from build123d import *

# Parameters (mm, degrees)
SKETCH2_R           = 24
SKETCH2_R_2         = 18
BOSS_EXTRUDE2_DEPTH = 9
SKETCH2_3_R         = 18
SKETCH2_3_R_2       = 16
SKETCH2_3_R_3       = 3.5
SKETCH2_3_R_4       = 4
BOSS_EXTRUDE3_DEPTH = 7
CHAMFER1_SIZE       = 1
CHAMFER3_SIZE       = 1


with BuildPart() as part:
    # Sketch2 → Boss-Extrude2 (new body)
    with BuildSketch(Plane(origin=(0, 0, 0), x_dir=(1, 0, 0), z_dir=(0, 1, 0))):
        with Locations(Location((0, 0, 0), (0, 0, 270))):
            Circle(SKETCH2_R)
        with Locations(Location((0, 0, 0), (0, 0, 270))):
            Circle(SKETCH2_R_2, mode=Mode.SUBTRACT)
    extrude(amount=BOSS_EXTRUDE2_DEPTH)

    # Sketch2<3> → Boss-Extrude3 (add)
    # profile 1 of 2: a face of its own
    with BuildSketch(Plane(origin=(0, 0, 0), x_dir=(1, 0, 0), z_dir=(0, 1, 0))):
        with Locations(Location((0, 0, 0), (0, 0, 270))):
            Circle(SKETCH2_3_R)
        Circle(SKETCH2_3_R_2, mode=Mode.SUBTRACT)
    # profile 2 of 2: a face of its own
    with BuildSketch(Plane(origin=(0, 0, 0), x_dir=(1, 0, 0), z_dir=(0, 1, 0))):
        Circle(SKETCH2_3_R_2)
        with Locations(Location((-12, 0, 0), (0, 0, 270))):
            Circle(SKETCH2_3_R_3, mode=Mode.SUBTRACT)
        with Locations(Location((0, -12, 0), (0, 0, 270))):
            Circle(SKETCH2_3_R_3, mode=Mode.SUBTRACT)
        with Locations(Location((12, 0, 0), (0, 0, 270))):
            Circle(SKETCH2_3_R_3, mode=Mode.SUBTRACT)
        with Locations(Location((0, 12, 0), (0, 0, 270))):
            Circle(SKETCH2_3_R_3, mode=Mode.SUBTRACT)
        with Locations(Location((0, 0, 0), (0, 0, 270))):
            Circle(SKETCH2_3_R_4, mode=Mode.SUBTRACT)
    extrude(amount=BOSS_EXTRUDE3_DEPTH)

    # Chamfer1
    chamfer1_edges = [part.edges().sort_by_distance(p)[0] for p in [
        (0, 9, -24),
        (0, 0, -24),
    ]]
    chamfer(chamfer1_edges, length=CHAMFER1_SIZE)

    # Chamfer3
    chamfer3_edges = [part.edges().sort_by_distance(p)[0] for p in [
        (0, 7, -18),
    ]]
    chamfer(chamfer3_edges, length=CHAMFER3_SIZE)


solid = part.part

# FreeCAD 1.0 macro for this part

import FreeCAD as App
import Part
import Sketcher
from FreeCAD import Vector
Q = App.Units.Quantity


def edges_at(feature, points):
    """Names of the edges that pass closest to the given points."""
    edges = feature.Shape.Edges
    near = lambda p: min(range(len(edges)), key=lambda i: edges[i].distToShape(Part.Vertex(*p))[0])
    return sorted({f"Edge{near(p) + 1}" for p in points})

doc = App.newDocument("Part")
body = doc.addObject("PartDesign::Body", "Body")

sketch1 = body.newObject("Sketcher::SketchObject", "Sketch")
sketch1.AttachmentSupport = (doc.getObject("XZ_Plane"), [""])
sketch1.MapMode = "FlatFace"
sketch1.addGeometry(Part.Circle(Vector(0, 0, 0), Vector(0, 0, 1), 24), False)
sketch1.addGeometry(Part.Circle(Vector(0, 0, 0), Vector(0, 0, 1), 18), False)
sketch1.addConstraint(Sketcher.Constraint("Coincident", 0, 3, -1, 1))
sketch1.addConstraint(Sketcher.Constraint("Coincident", 1, 3, -1, 1))
sketch1.addConstraint(Sketcher.Constraint("Diameter", 0, Q("48 mm")))
sketch1.addConstraint(Sketcher.Constraint("Diameter", 1, Q("36 mm")))
pad1 = body.newObject("PartDesign::Pad", "Pad")
pad1.Profile = sketch1
pad1.Length = 9
pad1.Reversed = True

sketch2 = body.newObject("Sketcher::SketchObject", "Sketch001")
sketch2.AttachmentSupport = (doc.getObject("XZ_Plane"), [""])
sketch2.MapMode = "FlatFace"
sketch2.addGeometry(Part.Circle(Vector(0, 0, 0), Vector(0, 0, 1), 18), False)
sketch2.addGeometry(Part.Circle(Vector(0, -12, 0), Vector(0, 0, 1), 3.5), False)
sketch2.addGeometry(Part.Circle(Vector(0, 12, 0), Vector(0, 0, 1), 3.5), False)
sketch2.addGeometry(Part.Circle(Vector(-12, 0, 0), Vector(0, 0, 1), 3.5), False)
sketch2.addGeometry(Part.Circle(Vector(0, 0, 0), Vector(0, 0, 1), 4), False)
sketch2.addGeometry(Part.Circle(Vector(12, 0, 0), Vector(0, 0, 1), 3.5), False)
sketch2.addConstraint(Sketcher.Constraint("Coincident", 0, 3, -1, 1))
sketch2.addConstraint(Sketcher.Constraint("Coincident", 4, 3, -1, 1))
sketch2.addConstraint(Sketcher.Constraint("Equal", 1, 2))
sketch2.addConstraint(Sketcher.Constraint("Equal", 2, 3))
sketch2.addConstraint(Sketcher.Constraint("Equal", 3, 5))
sketch2.addConstraint(Sketcher.Constraint("Symmetric", 1, 3, 2, 3, -1, 1))
sketch2.addConstraint(Sketcher.Constraint("Symmetric", 3, 3, 5, 3, -1, 1))
sketch2.addConstraint(Sketcher.Constraint("PointOnObject", 1, 3, -2))
sketch2.addConstraint(Sketcher.Constraint("PointOnObject", 3, 3, -1))
sketch2.addConstraint(Sketcher.Constraint("Diameter", 0, Q("36 mm")))
sketch2.addConstraint(Sketcher.Constraint("Diameter", 1, Q("7 mm")))
sketch2.addConstraint(Sketcher.Constraint("Diameter", 4, Q("8 mm")))
sketch2.addConstraint(Sketcher.Constraint("DistanceY", 1, 3, -1, 1, Q("12 mm")))
sketch2.addConstraint(Sketcher.Constraint("DistanceX", 3, 3, -1, 1, Q("12 mm")))
pad2 = body.newObject("PartDesign::Pad", "Pad001")
pad2.Profile = sketch2
pad2.Length = 7
pad2.Reversed = True
doc.recompute()

chamfer = body.newObject("PartDesign::Chamfer", "Chamfer")
chamfer.Base = (pad2, edges_at(pad2, [(0, 9, -24), (0, 0, -24)]))
chamfer.Size = 1
doc.recompute()

chamfer2 = body.newObject("PartDesign::Chamfer", "Chamfer001")
chamfer2.Base = (chamfer, edges_at(chamfer, [(0, 7, -18)]))
chamfer2.Size = 1

doc.recompute()
